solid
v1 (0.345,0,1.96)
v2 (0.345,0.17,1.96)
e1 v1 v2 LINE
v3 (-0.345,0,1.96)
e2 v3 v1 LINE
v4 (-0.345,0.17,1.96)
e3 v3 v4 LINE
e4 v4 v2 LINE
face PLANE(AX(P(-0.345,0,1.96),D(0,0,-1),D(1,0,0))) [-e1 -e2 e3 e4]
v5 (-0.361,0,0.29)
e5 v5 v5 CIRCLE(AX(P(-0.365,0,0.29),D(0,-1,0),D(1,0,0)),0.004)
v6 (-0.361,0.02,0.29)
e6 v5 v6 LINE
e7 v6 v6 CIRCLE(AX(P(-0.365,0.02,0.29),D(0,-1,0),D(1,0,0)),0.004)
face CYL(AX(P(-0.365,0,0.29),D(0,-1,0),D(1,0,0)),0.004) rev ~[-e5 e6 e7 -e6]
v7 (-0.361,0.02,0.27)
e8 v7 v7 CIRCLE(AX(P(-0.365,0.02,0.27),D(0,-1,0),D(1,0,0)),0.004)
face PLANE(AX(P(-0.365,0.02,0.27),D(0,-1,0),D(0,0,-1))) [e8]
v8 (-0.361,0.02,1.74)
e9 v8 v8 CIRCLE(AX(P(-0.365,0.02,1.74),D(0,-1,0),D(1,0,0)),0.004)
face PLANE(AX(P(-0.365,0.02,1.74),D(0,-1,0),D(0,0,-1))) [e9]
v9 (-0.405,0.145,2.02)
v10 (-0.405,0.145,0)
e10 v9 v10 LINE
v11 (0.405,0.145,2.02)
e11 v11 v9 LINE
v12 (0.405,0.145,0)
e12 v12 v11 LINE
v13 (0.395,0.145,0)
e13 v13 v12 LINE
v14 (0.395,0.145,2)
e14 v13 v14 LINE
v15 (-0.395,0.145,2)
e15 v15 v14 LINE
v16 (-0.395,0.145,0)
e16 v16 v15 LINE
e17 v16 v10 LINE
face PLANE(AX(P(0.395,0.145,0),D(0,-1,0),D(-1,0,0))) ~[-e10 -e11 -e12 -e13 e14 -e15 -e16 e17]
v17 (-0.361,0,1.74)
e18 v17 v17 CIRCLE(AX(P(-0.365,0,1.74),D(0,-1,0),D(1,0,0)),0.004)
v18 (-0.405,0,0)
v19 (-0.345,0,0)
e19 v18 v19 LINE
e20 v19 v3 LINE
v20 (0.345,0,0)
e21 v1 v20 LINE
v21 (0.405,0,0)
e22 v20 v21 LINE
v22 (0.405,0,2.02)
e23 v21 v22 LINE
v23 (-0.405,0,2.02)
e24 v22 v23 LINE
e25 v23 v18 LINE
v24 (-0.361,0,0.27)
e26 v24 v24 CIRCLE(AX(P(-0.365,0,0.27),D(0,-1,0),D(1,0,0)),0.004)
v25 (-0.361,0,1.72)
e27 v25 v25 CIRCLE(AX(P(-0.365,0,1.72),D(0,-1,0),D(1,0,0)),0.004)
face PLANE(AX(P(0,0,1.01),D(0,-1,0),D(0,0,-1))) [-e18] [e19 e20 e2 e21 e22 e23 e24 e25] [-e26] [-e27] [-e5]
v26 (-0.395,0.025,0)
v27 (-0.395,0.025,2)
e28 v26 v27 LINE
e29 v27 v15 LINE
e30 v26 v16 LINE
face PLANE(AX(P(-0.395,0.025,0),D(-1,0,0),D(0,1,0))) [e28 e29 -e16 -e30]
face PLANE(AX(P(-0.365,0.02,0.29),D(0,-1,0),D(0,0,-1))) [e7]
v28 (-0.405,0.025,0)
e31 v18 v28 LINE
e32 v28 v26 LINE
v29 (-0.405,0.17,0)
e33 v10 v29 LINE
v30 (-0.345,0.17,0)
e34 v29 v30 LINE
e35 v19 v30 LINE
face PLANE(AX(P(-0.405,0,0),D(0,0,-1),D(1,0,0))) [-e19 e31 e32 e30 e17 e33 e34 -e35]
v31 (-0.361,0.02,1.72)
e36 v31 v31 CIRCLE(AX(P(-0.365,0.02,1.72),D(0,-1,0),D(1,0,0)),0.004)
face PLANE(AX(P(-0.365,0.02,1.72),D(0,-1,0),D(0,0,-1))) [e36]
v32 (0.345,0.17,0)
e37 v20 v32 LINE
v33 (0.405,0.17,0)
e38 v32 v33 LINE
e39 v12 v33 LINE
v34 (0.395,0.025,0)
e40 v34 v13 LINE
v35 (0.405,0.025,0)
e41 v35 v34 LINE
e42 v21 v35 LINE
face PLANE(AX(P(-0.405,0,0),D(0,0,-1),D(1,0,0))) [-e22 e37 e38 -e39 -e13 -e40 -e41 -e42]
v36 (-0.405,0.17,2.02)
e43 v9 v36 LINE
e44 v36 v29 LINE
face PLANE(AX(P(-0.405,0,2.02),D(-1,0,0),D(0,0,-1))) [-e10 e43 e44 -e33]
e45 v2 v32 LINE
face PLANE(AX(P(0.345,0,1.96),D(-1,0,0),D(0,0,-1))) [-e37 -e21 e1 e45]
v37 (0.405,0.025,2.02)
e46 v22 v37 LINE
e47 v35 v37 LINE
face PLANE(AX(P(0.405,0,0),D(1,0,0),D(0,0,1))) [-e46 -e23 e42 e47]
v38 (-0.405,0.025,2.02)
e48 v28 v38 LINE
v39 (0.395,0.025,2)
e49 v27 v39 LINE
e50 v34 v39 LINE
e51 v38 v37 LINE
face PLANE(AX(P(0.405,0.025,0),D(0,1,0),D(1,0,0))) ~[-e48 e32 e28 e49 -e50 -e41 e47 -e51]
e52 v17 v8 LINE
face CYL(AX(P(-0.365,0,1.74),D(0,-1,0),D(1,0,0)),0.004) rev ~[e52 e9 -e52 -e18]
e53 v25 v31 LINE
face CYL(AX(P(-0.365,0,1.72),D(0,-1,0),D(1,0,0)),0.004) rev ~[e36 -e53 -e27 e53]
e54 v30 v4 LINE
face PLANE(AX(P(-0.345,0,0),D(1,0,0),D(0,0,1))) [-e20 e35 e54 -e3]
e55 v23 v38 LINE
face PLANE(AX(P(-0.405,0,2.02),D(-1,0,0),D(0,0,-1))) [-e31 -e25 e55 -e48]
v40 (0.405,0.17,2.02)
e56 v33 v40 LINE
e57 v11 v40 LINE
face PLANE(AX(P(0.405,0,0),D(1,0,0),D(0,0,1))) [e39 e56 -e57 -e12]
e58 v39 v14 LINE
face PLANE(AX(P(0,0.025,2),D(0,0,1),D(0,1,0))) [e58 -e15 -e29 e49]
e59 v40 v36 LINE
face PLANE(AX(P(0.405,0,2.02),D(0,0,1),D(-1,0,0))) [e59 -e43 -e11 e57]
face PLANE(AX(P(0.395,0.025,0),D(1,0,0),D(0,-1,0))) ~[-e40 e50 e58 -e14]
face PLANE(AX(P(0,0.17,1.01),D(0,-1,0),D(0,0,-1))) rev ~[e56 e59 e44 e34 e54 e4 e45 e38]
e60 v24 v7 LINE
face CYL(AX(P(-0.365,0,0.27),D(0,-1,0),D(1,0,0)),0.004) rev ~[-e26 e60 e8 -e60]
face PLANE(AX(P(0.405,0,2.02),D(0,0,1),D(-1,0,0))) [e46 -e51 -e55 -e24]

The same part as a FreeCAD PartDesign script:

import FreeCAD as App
import Part
import Sketcher
from FreeCAD import Vector


def add_polygon(sketch, points):
    """Adds a closed chain of lines whose ends are joined by coincident constraints."""
    first, n = sketch.GeometryCount, len(points)
    for a, b in zip(points, points[1:] + points[:1]):
        sketch.addGeometry(Part.LineSegment(App.Vector(*a, 0), App.Vector(*b, 0)), False)
    for i in range(n):
        sketch.addConstraint(Sketcher.Constraint("Coincident", first + i, 2, first + (i + 1) % n, 1))

doc = App.newDocument("Part")
body = doc.addObject("PartDesign::Body", "Body")

sketch1 = body.newObject("Sketcher::SketchObject", "Sketch")
sketch1.AttachmentSupport = (doc.getObject("XZ_Plane"), [""])
sketch1.MapMode = "FlatFace"
add_polygon(sketch1, [(-0.4, 2), (-0.4, 0), (0.4, 0), (0.4, 2)])
sketch1.addConstraint([
    Sketcher.Constraint("Vertical", 0),
    Sketcher.Constraint("Horizontal", 1),
    Sketcher.Constraint("Vertical", 2),
    Sketcher.Constraint("Horizontal", 3),
    Sketcher.Constraint("Symmetric", 0, 2, 1, 2, -1, 1),
    Sketcher.Constraint("DistanceX", 0, 2, -1, 1, 0.405),
    Sketcher.Constraint("DistanceY", 0, 2, 0, 1, 2.02),
])
pad1 = body.newObject("PartDesign::Pad", "Pad")
pad1.Profile = sketch1
pad1.Length = 0.17
pad1.Reversed = True

sketch2 = body.newObject("Sketcher::SketchObject", "Sketch001")
sketch2.AttachmentSupport = (doc.getObject("XY_Plane"), [""])
sketch2.MapMode = "FlatFace"
add_polygon(sketch2, [(-0.405, 0.025), (-0.405, 0.145), (-0.395, 0.145), (-0.395, 0.025)])
sketch2.addConstraint([
    Sketcher.Constraint("Vertical", 0),
    Sketcher.Constraint("Horizontal", 1),
    Sketcher.Constraint("Vertical", 2),
    Sketcher.Constraint("Horizontal", 3),
    Sketcher.Constraint("DistanceX", 0, 2, -1, 1, 0.405),
    Sketcher.Constraint("DistanceX", 1, 2, -1, 1, 0.395),
    Sketcher.Constraint("DistanceY", 0, 1, 0, 2, 0.12),
    Sketcher.Constraint("DistanceY", -1, 1, 0, 2, 0.145),
])
pocket1 = body.newObject("PartDesign::Pocket", "Pocket")
pocket1.Profile = sketch2
pocket1.Type = "ThroughAll"
pocket1.Reversed = True
doc.recompute()

mirrored = body.newObject("PartDesign::Mirrored", "Mirrored")
mirrored.Originals = [pocket1]
mirrored.MirrorPlane = (doc.getObject("YZ_Plane"), [""])
body.Tip = mirrored

sketch3 = body.newObject("Sketcher::SketchObject", "Sketch002")
sketch3.AttachmentSupport = (doc.getObject("YZ_Plane"), [""])
sketch3.MapMode = "FlatFace"
add_polygon(sketch3, [(0.145, 2.02), (0.025, 2.02), (0.025, 2), (0.145, 2)])
sketch3.addConstraint([
    Sketcher.Constraint("Horizontal", 0),
    Sketcher.Constraint("Vertical", 1),
    Sketcher.Constraint("Horizontal", 2),
    Sketcher.Constraint("Vertical", 3),
    Sketcher.Constraint("DistanceX", -1, 1, 2, 2, 0.145),
    Sketcher.Constraint("DistanceY", -1, 1, 1, 2, 2.0),
    Sketcher.Constraint("DistanceX", 0, 2, 0, 1, 0.12),
    Sketcher.Constraint("DistanceY", 1, 2, 1, 1, 0.02),
])
pocket2 = body.newObject("PartDesign::Pocket", "Pocket001")
pocket2.Profile = sketch3
pocket2.Type = "ThroughAll"
pocket2.Midplane = True

sketch4 = body.newObject("Sketcher::SketchObject", "Sketch003")
sketch4.AttachmentSupport = (doc.getObject("XZ_Plane"), [""])
sketch4.MapMode = "FlatFace"
add_polygon(sketch4, [(-0.3, 2), (-0.3, 0), (0.3, 0), (0.3, 2)])
sketch4.addConstraint([
    Sketcher.Constraint("Vertical", 0),
    Sketcher.Constraint("Horizontal", 1),
    Sketcher.Constraint("Vertical", 2),
    Sketcher.Constraint("Horizontal", 3),
    Sketcher.Constraint("Symmetric", 0, 2, 1, 2, -1, 1),
    Sketcher.Constraint("DistanceX", 0, 2, -1, 1, 0.345),
    Sketcher.Constraint("DistanceY", 0, 2, 0, 1, 1.96),
])
pocket3 = body.newObject("PartDesign::Pocket", "Pocket002")
pocket3.Profile = sketch4
pocket3.Type = "ThroughAll"

sketch5 = body.newObject("Sketcher::SketchObject", "Sketch004")
sketch5.AttachmentSupport = (doc.getObject("XZ_Plane"), [""])
sketch5.MapMode = "FlatFace"
sketch5.addGeometry([
    Part.Circle(Vector(-0.365, 0.29, 0), Vector(0, 0, 1), 0.004),
    Part.Circle(Vector(-0.365, 1.72, 0), Vector(0, 0, 1), 0.004),
    Part.Circle(Vector(-0.365, 1.74, 0), Vector(0, 0, 1), 0.004),
    Part.Circle(Vector(-0.365, 0.27, 0), Vector(0, 0, 1), 0.004),
], False)
sketch5.addConstraint([
    Sketcher.Constraint("Equal", 0, 1),
    Sketcher.Constraint("Equal", 1, 2),
    Sketcher.Constraint("Equal", 2, 3),
    Sketcher.Constraint("Vertical", 0, 3, 1, 3),
    Sketcher.Constraint("Vertical", 1, 3, 2, 3),
    Sketcher.Constraint("Vertical", 2, 3, 3, 3),
    Sketcher.Constraint("Diameter", 0, 0.008),
    Sketcher.Constraint("DistanceX", 0, 3, -1, 1, 0.365),
    Sketcher.Constraint("DistanceY", -1, 1, 0, 3, 0.29),
    Sketcher.Constraint("DistanceY", -1, 1, 1, 3, 1.72),
    Sketcher.Constraint("DistanceY", -1, 1, 2, 3, 1.74),
    Sketcher.Constraint("DistanceY", -1, 1, 3, 3, 0.27),
])
pocket4 = body.newObject("PartDesign::Pocket", "Pocket003")
pocket4.Profile = sketch5
pocket4.Length = 0.02

doc.recompute()
